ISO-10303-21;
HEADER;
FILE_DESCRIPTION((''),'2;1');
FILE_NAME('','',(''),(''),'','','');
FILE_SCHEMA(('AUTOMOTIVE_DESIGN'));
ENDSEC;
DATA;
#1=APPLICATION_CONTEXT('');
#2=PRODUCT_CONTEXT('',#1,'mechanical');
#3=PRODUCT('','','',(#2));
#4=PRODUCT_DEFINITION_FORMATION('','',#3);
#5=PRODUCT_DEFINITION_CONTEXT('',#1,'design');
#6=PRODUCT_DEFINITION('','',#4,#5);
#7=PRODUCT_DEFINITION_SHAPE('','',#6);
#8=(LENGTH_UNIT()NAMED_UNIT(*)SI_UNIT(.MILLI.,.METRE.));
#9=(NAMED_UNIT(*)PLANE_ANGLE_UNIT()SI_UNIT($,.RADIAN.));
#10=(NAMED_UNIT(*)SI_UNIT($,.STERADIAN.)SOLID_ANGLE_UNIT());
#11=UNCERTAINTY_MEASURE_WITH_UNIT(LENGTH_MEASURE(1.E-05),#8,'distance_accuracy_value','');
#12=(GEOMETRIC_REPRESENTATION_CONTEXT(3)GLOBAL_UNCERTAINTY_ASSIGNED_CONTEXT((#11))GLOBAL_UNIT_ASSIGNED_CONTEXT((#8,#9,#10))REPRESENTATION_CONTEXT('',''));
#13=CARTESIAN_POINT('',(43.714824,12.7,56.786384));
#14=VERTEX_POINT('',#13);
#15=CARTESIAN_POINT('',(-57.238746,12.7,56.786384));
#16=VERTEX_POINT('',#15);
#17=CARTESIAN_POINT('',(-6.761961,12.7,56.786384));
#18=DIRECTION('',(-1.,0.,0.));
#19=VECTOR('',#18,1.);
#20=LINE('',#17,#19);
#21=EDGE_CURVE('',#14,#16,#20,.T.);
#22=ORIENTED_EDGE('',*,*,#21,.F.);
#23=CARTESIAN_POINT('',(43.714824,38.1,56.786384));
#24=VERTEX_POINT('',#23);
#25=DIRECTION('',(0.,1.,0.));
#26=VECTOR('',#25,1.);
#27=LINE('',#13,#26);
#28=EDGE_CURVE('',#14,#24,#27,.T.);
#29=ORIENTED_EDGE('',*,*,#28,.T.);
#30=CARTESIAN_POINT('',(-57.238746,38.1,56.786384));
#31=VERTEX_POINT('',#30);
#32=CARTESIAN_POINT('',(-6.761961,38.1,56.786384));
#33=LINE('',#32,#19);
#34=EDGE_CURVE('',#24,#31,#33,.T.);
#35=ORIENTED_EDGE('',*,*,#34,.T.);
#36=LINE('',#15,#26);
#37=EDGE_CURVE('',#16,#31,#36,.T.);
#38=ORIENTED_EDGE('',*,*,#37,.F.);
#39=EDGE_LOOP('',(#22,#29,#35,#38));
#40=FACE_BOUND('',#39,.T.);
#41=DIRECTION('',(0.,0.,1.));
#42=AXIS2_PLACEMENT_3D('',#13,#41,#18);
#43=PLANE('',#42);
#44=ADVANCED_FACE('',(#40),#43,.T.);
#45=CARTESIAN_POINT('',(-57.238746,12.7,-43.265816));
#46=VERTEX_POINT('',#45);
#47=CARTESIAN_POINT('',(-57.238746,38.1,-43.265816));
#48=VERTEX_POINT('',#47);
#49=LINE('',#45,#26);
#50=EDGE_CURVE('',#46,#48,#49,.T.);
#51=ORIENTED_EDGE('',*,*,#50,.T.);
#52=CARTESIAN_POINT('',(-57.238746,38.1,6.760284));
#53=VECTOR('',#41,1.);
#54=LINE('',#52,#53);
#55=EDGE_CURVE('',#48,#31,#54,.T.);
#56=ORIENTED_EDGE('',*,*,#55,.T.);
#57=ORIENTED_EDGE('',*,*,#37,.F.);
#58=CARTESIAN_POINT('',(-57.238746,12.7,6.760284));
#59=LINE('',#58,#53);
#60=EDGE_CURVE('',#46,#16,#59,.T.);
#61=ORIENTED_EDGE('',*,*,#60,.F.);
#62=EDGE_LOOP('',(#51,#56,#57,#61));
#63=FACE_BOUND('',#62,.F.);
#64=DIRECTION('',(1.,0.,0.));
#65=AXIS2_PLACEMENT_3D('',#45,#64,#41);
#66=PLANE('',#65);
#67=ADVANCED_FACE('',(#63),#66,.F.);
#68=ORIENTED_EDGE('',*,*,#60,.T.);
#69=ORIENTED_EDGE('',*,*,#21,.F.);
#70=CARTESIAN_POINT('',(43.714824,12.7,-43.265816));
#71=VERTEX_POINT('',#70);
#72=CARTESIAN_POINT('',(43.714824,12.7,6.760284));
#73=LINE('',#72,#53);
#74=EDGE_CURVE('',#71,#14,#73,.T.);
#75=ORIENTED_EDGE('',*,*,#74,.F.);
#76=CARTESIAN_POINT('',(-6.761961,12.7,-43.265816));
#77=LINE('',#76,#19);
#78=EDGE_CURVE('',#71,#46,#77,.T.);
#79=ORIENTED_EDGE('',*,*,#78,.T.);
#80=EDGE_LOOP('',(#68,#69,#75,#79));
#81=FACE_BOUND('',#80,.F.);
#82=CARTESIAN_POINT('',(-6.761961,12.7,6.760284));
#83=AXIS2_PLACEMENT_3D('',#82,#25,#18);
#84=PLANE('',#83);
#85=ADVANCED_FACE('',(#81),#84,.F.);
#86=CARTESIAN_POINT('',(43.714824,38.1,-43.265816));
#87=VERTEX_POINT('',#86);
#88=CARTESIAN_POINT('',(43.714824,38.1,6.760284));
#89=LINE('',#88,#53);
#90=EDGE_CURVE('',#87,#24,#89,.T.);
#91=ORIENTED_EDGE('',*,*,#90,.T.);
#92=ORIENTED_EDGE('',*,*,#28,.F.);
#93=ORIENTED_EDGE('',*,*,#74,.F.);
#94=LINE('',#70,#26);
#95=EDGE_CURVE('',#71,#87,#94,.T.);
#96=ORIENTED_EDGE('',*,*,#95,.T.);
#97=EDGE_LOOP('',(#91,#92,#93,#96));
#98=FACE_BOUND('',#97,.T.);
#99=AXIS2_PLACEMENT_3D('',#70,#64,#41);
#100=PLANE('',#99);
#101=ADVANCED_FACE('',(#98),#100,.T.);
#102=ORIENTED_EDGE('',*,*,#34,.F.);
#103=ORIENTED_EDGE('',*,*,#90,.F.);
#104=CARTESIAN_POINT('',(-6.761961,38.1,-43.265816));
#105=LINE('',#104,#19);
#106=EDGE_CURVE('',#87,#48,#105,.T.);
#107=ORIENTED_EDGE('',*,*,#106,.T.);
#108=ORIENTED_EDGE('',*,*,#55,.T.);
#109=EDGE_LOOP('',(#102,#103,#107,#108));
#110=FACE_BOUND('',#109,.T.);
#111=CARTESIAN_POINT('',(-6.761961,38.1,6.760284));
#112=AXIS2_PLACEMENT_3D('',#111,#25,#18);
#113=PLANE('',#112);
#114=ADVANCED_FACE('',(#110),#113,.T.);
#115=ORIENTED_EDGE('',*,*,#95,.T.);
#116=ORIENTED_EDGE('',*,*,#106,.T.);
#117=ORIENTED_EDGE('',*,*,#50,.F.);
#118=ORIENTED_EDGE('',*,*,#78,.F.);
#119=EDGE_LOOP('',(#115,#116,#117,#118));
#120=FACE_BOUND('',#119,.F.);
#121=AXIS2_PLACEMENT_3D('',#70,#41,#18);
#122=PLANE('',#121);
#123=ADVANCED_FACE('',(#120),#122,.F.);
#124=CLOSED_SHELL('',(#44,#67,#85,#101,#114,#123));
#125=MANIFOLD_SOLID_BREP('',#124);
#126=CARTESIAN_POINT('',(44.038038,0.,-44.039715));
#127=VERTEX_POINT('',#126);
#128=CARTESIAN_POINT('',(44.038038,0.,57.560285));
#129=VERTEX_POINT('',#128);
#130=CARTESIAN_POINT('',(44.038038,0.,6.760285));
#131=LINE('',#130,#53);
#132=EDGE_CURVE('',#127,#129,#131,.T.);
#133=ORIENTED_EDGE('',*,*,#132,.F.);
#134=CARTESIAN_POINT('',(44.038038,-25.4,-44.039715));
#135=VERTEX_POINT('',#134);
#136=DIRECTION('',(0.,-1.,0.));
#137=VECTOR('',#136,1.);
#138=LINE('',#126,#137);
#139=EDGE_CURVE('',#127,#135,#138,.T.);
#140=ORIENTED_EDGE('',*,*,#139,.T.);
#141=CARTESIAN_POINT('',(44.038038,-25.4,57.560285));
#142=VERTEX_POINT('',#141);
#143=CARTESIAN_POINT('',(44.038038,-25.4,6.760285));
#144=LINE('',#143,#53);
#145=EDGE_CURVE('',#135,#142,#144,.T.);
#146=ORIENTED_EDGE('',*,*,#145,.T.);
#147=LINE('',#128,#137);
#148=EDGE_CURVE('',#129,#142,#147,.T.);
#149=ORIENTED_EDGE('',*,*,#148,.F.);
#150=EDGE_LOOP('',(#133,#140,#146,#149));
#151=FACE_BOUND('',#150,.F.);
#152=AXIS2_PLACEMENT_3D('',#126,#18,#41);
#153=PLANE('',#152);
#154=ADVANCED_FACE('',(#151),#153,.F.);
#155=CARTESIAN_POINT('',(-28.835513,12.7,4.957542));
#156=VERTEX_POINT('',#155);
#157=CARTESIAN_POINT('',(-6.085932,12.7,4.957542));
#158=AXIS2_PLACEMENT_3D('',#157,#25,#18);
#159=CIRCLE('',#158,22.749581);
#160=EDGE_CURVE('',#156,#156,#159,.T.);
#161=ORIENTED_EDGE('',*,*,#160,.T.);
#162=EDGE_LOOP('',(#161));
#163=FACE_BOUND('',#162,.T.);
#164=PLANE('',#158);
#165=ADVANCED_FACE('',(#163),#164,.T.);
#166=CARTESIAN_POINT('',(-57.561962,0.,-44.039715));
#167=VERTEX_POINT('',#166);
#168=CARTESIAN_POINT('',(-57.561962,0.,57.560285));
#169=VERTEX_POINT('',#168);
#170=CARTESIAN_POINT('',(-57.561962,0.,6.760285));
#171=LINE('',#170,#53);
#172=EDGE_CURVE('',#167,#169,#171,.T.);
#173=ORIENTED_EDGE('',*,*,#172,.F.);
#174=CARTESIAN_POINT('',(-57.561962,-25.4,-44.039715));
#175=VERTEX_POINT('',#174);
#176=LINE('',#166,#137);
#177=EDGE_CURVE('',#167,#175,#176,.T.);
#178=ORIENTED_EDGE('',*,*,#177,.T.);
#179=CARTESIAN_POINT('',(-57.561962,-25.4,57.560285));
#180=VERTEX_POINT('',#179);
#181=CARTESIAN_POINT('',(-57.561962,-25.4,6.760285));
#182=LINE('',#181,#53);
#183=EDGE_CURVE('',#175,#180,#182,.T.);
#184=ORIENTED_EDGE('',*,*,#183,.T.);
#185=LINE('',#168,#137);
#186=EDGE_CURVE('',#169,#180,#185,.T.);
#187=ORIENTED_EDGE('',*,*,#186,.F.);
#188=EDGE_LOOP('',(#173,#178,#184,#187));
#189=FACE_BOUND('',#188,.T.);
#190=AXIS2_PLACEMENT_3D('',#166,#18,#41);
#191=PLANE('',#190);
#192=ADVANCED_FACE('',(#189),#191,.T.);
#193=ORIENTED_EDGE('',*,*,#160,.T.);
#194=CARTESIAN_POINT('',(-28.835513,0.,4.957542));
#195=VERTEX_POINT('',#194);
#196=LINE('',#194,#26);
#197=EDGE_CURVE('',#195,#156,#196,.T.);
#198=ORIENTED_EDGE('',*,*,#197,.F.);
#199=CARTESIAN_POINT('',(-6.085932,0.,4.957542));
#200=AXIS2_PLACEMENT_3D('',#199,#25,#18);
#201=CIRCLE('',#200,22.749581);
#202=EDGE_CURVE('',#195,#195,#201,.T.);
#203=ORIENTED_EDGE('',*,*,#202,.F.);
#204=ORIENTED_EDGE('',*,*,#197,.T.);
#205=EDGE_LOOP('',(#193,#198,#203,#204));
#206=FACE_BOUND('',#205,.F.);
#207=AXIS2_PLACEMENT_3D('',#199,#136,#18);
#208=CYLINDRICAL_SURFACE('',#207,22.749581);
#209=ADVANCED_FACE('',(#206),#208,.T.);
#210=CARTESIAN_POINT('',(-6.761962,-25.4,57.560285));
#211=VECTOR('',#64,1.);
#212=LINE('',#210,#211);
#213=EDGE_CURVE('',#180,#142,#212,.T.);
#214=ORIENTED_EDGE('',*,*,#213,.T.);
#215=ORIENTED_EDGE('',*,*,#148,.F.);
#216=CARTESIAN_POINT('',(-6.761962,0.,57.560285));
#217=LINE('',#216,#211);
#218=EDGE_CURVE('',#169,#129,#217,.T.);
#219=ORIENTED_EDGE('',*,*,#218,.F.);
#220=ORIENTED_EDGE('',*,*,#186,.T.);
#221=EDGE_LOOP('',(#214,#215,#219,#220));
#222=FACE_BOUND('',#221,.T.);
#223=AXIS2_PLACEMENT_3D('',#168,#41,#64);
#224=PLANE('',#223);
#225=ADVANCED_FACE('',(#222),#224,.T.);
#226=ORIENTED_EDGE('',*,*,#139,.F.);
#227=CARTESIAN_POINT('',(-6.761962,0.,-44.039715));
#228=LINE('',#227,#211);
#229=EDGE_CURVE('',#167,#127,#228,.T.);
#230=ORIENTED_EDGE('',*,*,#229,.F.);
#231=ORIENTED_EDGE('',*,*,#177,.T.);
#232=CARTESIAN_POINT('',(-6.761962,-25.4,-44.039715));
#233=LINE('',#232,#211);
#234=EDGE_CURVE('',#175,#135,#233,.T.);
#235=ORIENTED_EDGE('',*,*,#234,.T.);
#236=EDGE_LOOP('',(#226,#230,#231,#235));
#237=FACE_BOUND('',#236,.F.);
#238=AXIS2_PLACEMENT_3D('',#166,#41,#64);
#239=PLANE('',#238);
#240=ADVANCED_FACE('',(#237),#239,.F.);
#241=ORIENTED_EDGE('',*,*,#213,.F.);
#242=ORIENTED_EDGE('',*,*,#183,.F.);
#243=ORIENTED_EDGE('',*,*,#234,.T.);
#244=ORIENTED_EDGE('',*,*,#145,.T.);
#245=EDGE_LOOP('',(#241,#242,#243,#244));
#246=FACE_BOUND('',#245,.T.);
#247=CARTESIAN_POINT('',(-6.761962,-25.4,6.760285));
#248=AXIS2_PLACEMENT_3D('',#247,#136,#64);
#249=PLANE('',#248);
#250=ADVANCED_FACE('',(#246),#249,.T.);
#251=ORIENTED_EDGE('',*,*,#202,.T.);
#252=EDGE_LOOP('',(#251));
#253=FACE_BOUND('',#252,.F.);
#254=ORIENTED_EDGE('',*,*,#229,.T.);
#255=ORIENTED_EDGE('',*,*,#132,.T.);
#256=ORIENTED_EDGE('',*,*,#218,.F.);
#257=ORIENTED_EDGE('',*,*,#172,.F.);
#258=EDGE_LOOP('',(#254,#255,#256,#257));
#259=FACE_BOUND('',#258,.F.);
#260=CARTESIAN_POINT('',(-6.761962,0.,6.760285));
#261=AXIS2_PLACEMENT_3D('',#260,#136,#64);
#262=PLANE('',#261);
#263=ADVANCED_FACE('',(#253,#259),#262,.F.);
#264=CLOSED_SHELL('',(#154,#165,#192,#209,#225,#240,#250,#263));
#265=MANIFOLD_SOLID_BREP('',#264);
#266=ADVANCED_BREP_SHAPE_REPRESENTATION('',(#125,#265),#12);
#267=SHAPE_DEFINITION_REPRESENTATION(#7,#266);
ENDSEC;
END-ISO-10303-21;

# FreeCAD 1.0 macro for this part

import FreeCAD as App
import Part
import Sketcher
from FreeCAD import Vector
Q = App.Units.Quantity


def add_polygon(sketch, points):
    """Adds a closed chain of lines whose ends are joined by coincident constraints."""
    first, n = sketch.GeometryCount, len(points)
    for a, b in zip(points, points[1:] + points[:1]):
        sketch.addGeometry(Part.LineSegment(App.Vector(*a, 0), App.Vector(*b, 0)), False)
    for i in range(n):
        sketch.addConstraint(Sketcher.Constraint("Coincident", first + i, 2, first + (i + 1) % n, 1))

doc = App.newDocument("Part")
params = doc.addObject("Spreadsheet::Sheet", "Params")
for row, (alias, value) in enumerate([
    ("sketch1_width", "4 in"),
    ("pad1_length", "1 in"),
    ("pad2_length", "0.5 in"),
    ("pad3_length", "1 in"),
], start=1):
    params.set(f"A{row}", alias)
    params.set(f"B{row}", "=" + value)
    params.setAlias(f"B{row}", alias)

body = doc.addObject("PartDesign::Body", "Body")

sketch1 = body.newObject("Sketcher::SketchObject", "Sketch")
sketch1.AttachmentSupport = (doc.getObject("XZ_Plane"), [""])
sketch1.MapMode = "FlatFace"
add_polygon(sketch1, [(-57.561962, 57.560285), (-57.561962, -44.039715), (44.038038, -44.039715), (44.038038, 57.560285)])
sketch1.addConstraint([
    Sketcher.Constraint("Vertical", 0),
    Sketcher.Constraint("Horizontal", 1),
    Sketcher.Constraint("Vertical", 2),
    Sketcher.Constraint("Horizontal", 3),
    Sketcher.Constraint("Equal", 3, 0),
    Sketcher.Constraint("DistanceX", 1, 1, 1, 2, Q("4 in")),
    Sketcher.Constraint("DistanceX", 0, 2, -1, 1, Q("57.561962 mm")),
    Sketcher.Constraint("DistanceY", 0, 2, -1, 1, Q("44.039715 mm")),
])
sketch1.setExpression("Constraints[9]", "Params.sketch1_width")
pad1 = body.newObject("PartDesign::Pad", "Pad")
pad1.Profile = sketch1
pad1.setExpression("Length", "Params.pad1_length")

sketch2 = body.newObject("Sketcher::SketchObject", "Sketch001")
sketch2.AttachmentSupport = (doc.getObject("XZ_Plane"), [""])
sketch2.MapMode = "FlatFace"
sketch2.addGeometry(Part.Circle(Vector(-6.085932, 4.957542, 0), Vector(0, 0, 1), 22.749581), False)
sketch2.addConstraint([
    Sketcher.Constraint("Diameter", 0, Q("45.499162 mm")),
    Sketcher.Constraint("DistanceX", 0, 3, -1, 1, Q("6.085932 mm")),
    Sketcher.Constraint("DistanceY", -1, 1, 0, 3, Q("4.957542 mm")),
])
pad2 = body.newObject("PartDesign::Pad", "Pad001")
pad2.Profile = sketch2
pad2.setExpression("Length", "Params.pad2_length")
pad2.Reversed = True
body2 = doc.addObject("PartDesign::Body", "Body001")

sketch3 = body2.newObject("Sketcher::SketchObject", "Sketch002")
sketch3.AttachmentSupport = (doc.getObject("XZ_Plane001"), [""])
sketch3.MapMode = "FlatFace"
sketch3.AttachmentOffset = App.Placement(Vector(0, 0, -0.5 * 25.4), App.Rotation())
add_polygon(sketch3, [(43.714824, 56.786384), (43.714824, -43.265816), (-57.238746, -43.265816), (-57.238746, 56.786384)])
sketch3.addConstraint([
    Sketcher.Constraint("Vertical", 0),
    Sketcher.Constraint("Horizontal", 1),
    Sketcher.Constraint("Vertical", 2),
    Sketcher.Constraint("Horizontal", 3),
    Sketcher.Constraint("DistanceY", 0, 2, 0, 1, Q("100.0522 mm")),
    Sketcher.Constraint("DistanceX", 1, 2, 1, 1, Q("100.953571 mm")),
    Sketcher.Constraint("DistanceX", -1, 1, 0, 2, Q("43.714824 mm")),
    Sketcher.Constraint("DistanceY", 0, 2, -1, 1, Q("43.265816 mm")),
])
pad3 = body2.newObject("PartDesign::Pad", "Pad002")
pad3.Profile = sketch3
pad3.setExpression("Length", "Params.pad3_length")
pad3.Reversed = True

doc.recompute()
